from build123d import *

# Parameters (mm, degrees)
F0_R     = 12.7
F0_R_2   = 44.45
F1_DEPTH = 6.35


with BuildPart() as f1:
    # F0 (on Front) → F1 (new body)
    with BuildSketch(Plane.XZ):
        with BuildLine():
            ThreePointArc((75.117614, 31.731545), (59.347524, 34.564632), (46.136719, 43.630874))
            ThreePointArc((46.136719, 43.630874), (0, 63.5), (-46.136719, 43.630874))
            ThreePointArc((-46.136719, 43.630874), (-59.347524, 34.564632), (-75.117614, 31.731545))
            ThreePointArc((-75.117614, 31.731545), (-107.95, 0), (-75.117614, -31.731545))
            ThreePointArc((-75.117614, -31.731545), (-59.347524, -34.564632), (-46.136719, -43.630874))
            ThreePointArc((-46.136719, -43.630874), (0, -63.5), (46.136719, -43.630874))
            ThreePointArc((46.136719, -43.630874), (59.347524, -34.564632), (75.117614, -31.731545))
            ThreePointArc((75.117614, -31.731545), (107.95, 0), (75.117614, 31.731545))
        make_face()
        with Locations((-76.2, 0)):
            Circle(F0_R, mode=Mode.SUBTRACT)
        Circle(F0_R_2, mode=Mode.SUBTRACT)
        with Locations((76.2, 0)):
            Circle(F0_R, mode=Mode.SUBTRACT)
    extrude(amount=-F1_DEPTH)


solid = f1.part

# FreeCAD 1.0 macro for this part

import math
import FreeCAD as App
import Part
import Sketcher
Q = App.Units.Quantity

doc = App.newDocument("Part")
params = doc.addObject("Spreadsheet::Sheet", "Params")
for row, (alias, value) in enumerate([
    ("sketch1_diameter", "1 in"),
    ("sketch1_diameter2", "3.5 in"),
    ("sketch1_radius", "1.5000002 in"),
    ("sketch1_radius2", "2.5 in"),
    ("sketch1_radius3", "1.25 in"),
    ("pad1_length", "0.25 in"),
], start=1):
    params.set(f"A{row}", alias)
    params.set(f"B{row}", "=" + value)
    params.setAlias(f"B{row}", alias)

body = doc.addObject("PartDesign::Body", "Body")

sketch1 = body.newObject("Sketcher::SketchObject", "Sketch")
sketch1.AttachmentSupport = (doc.getObject("XZ_Plane"), [""])
sketch1.MapMode = "FlatFace"
sketch1.addGeometry([
    Part.ArcOfCircle(Part.Circle(App.Vector(74, 70, 0), App.Vector(0, 0, 1), 38), math.radians(-137), math.radians(-88)),
    Part.ArcOfCircle(Part.Circle(App.Vector(0, 0, 0), App.Vector(0, 0, 1), 64), math.radians(43), math.radians(137)),
    Part.ArcOfCircle(Part.Circle(App.Vector(-74, 70, 0), App.Vector(0, 0, 1), 38), math.radians(-92), math.radians(-43)),
    Part.ArcOfCircle(Part.Circle(App.Vector(-76, 0, 0), App.Vector(0, 0, 1), 32), math.radians(88), math.radians(272)),
    Part.ArcOfCircle(Part.Circle(App.Vector(-74, -70, 0), App.Vector(0, 0, 1), 38), math.radians(43), math.radians(92)),
    Part.ArcOfCircle(Part.Circle(App.Vector(0, 0, 0), App.Vector(0, 0, 1), 64), math.radians(-137), math.radians(-43)),
    Part.ArcOfCircle(Part.Circle(App.Vector(74, -70, 0), App.Vector(0, 0, 1), 38), math.radians(88), math.radians(137)),
    Part.ArcOfCircle(Part.Circle(App.Vector(76, 0, 0), App.Vector(0, 0, 1), 32), math.radians(-92), math.radians(92)),
    Part.Circle(App.Vector(-76, 0, 0), App.Vector(0, 0, 1), 13),
    Part.Circle(App.Vector(0, 0, 0), App.Vector(0, 0, 1), 44),
    Part.Circle(App.Vector(76, 0, 0), App.Vector(0, 0, 1), 13),
], False)
sketch1.addConstraint([
    Sketcher.Constraint("Tangent", 0, 1, 1, 1),
    Sketcher.Constraint("Tangent", 1, 2, 2, 2),
    Sketcher.Constraint("Tangent", 2, 1, 3, 1),
    Sketcher.Constraint("Tangent", 3, 2, 4, 2),
    Sketcher.Constraint("Tangent", 4, 1, 5, 1),
    Sketcher.Constraint("Tangent", 5, 2, 6, 2),
    Sketcher.Constraint("Tangent", 6, 1, 7, 1),
    Sketcher.Constraint("Tangent", 7, 2, 0, 2),
    Sketcher.Constraint("Coincident", 1, 3, -1, 1),
    Sketcher.Constraint("Coincident", 5, 3, -1, 1),
    Sketcher.Constraint("Coincident", 9, 3, -1, 1),
    Sketcher.Constraint("Coincident", 8, 3, 3, 3),
    Sketcher.Constraint("Coincident", 10, 3, 7, 3),
    Sketcher.Constraint("Equal", 0, 2),
    Sketcher.Constraint("Equal", 2, 4),
    Sketcher.Constraint("Equal", 1, 5),
    Sketcher.Constraint("Equal", 4, 6),
    Sketcher.Constraint("Equal", 3, 7),
    Sketcher.Constraint("Equal", 8, 10),
    Sketcher.Constraint("Symmetric", 3, 3, 7, 3, -1, 1),
    Sketcher.Constraint("PointOnObject", 3, 3, -1),
    Sketcher.Constraint("Diameter", 8, Q("1 in")),
    Sketcher.Constraint("Diameter", 9, Q("3.5 in")),
    Sketcher.Constraint("Radius", 0, Q("1.5000002 in")),
    Sketcher.Constraint("Radius", 1, Q("2.5 in")),
    Sketcher.Constraint("Radius", 3, Q("1.25 in")),
    Sketcher.Constraint("DistanceX", 3, 3, -1, 1, Q("3 in")),
])
sketch1.setExpression("Constraints[21]", "Params.sketch1_diameter")
sketch1.setExpression("Constraints[22]", "Params.sketch1_diameter2")
sketch1.setExpression("Constraints[23]", "Params.sketch1_radius")
sketch1.setExpression("Constraints[24]", "Params.sketch1_radius2")
sketch1.setExpression("Constraints[25]", "Params.sketch1_radius3")
pad1 = body.newObject("PartDesign::Pad", "Pad")
pad1.Profile = sketch1
pad1.setExpression("Length", "Params.pad1_length")
pad1.Reversed = True

doc.recompute()
